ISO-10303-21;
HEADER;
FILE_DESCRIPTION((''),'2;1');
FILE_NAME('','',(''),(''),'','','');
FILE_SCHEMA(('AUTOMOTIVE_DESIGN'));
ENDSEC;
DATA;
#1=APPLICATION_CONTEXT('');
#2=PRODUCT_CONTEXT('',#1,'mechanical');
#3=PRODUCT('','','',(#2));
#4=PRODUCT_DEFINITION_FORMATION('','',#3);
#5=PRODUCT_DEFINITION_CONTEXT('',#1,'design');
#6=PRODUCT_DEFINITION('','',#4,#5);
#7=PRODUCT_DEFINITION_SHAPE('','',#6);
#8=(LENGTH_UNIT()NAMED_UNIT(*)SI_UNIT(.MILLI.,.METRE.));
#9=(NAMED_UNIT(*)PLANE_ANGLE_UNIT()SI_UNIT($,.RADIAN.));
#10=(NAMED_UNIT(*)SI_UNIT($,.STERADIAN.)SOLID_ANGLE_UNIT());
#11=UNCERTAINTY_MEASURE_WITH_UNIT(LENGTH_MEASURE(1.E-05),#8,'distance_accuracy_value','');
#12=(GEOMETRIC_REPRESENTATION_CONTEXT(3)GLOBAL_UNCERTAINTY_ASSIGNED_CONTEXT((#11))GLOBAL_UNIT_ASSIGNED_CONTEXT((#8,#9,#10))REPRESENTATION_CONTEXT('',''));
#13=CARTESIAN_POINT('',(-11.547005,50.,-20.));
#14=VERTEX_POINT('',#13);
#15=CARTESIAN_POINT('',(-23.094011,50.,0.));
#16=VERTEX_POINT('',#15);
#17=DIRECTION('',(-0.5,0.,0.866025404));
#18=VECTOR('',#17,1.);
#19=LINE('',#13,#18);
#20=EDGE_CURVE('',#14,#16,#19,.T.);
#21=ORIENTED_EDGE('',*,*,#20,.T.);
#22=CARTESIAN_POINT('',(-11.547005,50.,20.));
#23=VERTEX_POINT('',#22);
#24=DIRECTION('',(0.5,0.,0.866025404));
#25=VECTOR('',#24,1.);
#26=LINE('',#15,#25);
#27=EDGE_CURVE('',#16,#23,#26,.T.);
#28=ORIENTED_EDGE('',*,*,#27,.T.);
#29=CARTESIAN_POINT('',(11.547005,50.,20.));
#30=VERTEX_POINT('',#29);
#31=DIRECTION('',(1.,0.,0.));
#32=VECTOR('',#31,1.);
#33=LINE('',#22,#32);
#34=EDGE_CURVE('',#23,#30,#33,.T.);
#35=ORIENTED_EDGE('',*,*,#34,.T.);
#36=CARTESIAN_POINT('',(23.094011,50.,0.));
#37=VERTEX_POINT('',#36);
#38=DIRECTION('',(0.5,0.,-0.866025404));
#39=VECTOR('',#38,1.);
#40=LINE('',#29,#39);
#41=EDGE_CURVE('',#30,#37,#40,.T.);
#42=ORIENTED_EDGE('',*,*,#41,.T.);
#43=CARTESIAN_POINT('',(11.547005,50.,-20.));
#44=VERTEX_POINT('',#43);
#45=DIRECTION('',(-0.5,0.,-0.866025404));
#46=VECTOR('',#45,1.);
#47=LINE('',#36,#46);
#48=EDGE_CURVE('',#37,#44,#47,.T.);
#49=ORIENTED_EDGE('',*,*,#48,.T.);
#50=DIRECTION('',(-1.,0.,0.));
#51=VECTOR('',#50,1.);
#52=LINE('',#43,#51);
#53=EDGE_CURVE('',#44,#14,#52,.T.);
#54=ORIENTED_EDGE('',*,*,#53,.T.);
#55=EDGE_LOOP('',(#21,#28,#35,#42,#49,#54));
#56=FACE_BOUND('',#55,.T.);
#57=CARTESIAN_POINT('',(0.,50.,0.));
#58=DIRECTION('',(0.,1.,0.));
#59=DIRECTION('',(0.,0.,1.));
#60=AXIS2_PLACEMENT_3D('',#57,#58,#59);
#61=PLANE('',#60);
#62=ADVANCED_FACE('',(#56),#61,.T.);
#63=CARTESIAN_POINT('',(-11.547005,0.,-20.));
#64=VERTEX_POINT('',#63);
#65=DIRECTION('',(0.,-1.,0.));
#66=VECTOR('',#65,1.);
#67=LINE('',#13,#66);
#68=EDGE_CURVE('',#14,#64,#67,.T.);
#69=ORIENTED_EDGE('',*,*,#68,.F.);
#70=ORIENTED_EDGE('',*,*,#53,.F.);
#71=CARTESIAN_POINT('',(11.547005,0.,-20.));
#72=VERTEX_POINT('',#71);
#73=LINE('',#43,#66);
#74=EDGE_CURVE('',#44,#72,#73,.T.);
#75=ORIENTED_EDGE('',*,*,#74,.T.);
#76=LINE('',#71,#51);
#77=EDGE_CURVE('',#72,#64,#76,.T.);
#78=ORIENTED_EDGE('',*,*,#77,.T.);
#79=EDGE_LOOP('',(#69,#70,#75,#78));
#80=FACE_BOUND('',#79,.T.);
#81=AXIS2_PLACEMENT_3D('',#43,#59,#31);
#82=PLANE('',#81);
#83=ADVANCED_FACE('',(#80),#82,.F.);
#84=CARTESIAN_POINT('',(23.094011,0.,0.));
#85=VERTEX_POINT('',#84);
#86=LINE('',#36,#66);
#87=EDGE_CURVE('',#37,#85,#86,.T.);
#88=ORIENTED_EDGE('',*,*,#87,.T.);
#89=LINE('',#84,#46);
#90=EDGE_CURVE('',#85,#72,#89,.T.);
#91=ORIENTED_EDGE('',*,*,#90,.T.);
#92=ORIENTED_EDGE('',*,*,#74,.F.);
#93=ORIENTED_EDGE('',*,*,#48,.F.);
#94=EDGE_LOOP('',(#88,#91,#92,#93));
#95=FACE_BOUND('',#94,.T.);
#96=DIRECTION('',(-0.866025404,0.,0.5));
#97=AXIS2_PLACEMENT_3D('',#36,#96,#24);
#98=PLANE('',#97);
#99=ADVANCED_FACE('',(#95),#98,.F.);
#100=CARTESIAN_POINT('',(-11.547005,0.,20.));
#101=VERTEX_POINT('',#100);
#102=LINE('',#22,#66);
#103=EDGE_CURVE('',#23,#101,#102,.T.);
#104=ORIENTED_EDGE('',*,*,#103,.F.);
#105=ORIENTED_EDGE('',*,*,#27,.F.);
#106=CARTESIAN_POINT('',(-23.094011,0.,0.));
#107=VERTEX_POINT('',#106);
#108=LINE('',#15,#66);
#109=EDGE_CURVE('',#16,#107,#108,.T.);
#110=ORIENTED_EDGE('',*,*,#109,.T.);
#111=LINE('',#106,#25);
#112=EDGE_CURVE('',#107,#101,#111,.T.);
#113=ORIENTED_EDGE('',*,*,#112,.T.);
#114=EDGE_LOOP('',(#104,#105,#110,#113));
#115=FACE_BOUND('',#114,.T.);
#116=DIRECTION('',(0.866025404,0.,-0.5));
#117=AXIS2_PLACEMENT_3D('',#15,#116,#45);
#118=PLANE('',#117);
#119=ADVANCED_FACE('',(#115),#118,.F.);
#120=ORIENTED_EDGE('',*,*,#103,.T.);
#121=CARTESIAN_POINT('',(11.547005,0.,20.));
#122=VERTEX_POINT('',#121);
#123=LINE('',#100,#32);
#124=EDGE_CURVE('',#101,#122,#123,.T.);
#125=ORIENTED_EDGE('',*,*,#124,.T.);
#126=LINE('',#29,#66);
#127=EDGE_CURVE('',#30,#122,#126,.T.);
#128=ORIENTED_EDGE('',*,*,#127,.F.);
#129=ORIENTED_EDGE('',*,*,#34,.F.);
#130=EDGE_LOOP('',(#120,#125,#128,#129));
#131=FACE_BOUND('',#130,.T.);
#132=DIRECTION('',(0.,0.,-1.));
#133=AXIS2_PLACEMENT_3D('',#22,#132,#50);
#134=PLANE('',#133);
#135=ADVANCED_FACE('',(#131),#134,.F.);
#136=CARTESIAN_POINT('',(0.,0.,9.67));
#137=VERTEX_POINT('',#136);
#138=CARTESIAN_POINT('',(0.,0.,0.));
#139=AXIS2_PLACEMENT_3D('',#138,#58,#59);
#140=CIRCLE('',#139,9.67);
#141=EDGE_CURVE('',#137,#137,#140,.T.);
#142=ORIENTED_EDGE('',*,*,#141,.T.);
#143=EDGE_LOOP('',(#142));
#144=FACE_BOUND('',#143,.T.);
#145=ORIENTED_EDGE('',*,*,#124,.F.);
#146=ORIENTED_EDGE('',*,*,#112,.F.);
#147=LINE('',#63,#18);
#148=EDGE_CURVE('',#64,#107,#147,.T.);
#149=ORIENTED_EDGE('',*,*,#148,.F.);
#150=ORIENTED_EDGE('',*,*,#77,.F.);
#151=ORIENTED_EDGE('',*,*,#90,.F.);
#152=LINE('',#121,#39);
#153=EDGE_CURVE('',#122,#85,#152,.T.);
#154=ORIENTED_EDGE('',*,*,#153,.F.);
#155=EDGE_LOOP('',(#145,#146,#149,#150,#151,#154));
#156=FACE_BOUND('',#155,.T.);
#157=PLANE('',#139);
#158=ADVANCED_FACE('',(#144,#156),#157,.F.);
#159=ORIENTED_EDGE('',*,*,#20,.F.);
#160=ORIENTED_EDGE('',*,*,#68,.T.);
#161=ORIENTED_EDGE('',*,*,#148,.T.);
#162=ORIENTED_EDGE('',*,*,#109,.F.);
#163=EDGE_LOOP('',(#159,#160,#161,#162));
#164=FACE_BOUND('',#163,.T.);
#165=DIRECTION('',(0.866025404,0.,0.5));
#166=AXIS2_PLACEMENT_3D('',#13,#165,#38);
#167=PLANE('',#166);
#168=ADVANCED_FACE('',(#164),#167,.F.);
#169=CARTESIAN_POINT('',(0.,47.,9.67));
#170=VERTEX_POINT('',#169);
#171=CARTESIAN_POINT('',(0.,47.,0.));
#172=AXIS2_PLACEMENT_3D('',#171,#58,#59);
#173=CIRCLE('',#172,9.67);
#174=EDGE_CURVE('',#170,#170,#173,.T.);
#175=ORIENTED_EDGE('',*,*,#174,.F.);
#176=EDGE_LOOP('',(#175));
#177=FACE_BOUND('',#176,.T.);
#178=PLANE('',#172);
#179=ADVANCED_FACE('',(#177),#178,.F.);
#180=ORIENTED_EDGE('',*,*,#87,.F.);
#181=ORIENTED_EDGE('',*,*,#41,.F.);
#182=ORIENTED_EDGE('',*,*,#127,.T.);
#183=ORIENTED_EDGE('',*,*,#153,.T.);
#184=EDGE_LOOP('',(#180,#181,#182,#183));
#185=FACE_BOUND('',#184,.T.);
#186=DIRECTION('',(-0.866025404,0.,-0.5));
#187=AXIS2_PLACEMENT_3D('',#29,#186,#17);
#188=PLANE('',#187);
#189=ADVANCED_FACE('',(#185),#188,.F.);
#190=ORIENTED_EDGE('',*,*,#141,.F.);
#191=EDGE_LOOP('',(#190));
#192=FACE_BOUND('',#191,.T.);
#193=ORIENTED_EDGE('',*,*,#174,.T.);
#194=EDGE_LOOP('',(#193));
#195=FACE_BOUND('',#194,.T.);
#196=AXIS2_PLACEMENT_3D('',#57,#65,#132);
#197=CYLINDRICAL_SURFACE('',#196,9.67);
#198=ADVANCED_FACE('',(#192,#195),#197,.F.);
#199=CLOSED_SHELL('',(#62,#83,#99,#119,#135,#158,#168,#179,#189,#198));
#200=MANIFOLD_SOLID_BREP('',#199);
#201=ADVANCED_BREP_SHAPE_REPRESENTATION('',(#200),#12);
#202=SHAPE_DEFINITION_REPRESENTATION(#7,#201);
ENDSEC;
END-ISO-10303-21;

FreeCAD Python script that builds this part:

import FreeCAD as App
import Part
import Sketcher

V = App.Vector
Q = App.Units.Quantity


def add_polygon(sketch, points):
    """Adds a closed chain of lines whose ends are joined by coincident constraints."""
    first, n = sketch.GeometryCount, len(points)
    for a, b in zip(points, points[1:] + points[:1]):
        sketch.addGeometry(Part.LineSegment(App.Vector(*a, 0), App.Vector(*b, 0)), False)
    for i in range(n):
        sketch.addConstraint(Sketcher.Constraint("Coincident", first + i, 2, first + (i + 1) % n, 1))

doc = App.newDocument("Part")
params = doc.addObject("Spreadsheet::Sheet", "Params")
for row, (alias, value) in enumerate([
    ("sketch1_diameter", "19.34 mm"),
    ("pad1_length", "50 mm"),
    ("sketch2_diameter", "19.34 mm"),
    ("pad2_length", "3 mm"),
], start=1):
    params.set(f"A{row}", alias)
    params.set(f"B{row}", "=" + value)
    params.setAlias(f"B{row}", alias)

body = doc.addObject("PartDesign::Body", "Body")

# Sketch on XZ plane
sketch1 = body.newObject("Sketcher::SketchObject", "Sketch")
sketch1.AttachmentSupport = (doc.getObject("XZ_Plane"), [""])
sketch1.MapMode = "FlatFace"
add_polygon(sketch1, [(23, 0), (12, -20), (-12, -20), (-23, 0), (-12, 20), (12, 20)])  # lines 0-5
sketch1.addGeometry(Part.Circle(V(0, 0, 0), V(0, 0, 1), 10), False)  # 6
sketch1.addConstraint([
    Sketcher.Constraint("Horizontal", 1),
    Sketcher.Constraint("Horizontal", 4),
    Sketcher.Constraint("Coincident", 6, 3, -1, 1),
    Sketcher.Constraint("Symmetric", 0, 2, 3, 2, -1, 1),
    Sketcher.Constraint("Symmetric", 2, 2, 5, 2, -1, 1),
    Sketcher.Constraint("PointOnObject", 2, 2, -1),
    Sketcher.Constraint("Parallel", 2, 5),
    Sketcher.Constraint("Vertical", 1, 2, 3, 2),
    Sketcher.Constraint("Diameter", 6, 19.34),
    Sketcher.Constraint("Angle", 0, Q("-120 deg")),
    Sketcher.Constraint("DistanceY", 0, 2, -1, 1, 20.0),
    Sketcher.Constraint("DistanceX", 1, 2, 1, 1, 23.094011),
])
sketch1.setExpression("Constraints[14]", "Params.sketch1_diameter")
pad1 = body.newObject("PartDesign::Pad", "Pad")
pad1.Profile = sketch1
pad1.setExpression("Length", "Params.pad1_length")
pad1.Reversed = True

# Sketch on XZ plane
sketch2 = body.newObject("Sketcher::SketchObject", "Sketch001")
sketch2.AttachmentSupport = (doc.getObject("XZ_Plane"), [""])
sketch2.MapMode = "FlatFace"
sketch2.AttachmentOffset = App.Placement(V(0, 0, -47), App.Rotation())
sketch2.addGeometry(Part.Circle(V(0, 0, 0), V(0, 0, 1), 10), False)
sketch2.addConstraint([
    Sketcher.Constraint("Coincident", 0, 3, -1, 1),
    Sketcher.Constraint("Diameter", 0, 19.34),
])
sketch2.setExpression("Constraints[1]", "Params.sketch2_diameter")
pad2 = body.newObject("PartDesign::Pad", "Pad001")
pad2.Profile = sketch2
pad2.setExpression("Length", "Params.pad2_length")
pad2.Reversed = True

doc.recompute()
